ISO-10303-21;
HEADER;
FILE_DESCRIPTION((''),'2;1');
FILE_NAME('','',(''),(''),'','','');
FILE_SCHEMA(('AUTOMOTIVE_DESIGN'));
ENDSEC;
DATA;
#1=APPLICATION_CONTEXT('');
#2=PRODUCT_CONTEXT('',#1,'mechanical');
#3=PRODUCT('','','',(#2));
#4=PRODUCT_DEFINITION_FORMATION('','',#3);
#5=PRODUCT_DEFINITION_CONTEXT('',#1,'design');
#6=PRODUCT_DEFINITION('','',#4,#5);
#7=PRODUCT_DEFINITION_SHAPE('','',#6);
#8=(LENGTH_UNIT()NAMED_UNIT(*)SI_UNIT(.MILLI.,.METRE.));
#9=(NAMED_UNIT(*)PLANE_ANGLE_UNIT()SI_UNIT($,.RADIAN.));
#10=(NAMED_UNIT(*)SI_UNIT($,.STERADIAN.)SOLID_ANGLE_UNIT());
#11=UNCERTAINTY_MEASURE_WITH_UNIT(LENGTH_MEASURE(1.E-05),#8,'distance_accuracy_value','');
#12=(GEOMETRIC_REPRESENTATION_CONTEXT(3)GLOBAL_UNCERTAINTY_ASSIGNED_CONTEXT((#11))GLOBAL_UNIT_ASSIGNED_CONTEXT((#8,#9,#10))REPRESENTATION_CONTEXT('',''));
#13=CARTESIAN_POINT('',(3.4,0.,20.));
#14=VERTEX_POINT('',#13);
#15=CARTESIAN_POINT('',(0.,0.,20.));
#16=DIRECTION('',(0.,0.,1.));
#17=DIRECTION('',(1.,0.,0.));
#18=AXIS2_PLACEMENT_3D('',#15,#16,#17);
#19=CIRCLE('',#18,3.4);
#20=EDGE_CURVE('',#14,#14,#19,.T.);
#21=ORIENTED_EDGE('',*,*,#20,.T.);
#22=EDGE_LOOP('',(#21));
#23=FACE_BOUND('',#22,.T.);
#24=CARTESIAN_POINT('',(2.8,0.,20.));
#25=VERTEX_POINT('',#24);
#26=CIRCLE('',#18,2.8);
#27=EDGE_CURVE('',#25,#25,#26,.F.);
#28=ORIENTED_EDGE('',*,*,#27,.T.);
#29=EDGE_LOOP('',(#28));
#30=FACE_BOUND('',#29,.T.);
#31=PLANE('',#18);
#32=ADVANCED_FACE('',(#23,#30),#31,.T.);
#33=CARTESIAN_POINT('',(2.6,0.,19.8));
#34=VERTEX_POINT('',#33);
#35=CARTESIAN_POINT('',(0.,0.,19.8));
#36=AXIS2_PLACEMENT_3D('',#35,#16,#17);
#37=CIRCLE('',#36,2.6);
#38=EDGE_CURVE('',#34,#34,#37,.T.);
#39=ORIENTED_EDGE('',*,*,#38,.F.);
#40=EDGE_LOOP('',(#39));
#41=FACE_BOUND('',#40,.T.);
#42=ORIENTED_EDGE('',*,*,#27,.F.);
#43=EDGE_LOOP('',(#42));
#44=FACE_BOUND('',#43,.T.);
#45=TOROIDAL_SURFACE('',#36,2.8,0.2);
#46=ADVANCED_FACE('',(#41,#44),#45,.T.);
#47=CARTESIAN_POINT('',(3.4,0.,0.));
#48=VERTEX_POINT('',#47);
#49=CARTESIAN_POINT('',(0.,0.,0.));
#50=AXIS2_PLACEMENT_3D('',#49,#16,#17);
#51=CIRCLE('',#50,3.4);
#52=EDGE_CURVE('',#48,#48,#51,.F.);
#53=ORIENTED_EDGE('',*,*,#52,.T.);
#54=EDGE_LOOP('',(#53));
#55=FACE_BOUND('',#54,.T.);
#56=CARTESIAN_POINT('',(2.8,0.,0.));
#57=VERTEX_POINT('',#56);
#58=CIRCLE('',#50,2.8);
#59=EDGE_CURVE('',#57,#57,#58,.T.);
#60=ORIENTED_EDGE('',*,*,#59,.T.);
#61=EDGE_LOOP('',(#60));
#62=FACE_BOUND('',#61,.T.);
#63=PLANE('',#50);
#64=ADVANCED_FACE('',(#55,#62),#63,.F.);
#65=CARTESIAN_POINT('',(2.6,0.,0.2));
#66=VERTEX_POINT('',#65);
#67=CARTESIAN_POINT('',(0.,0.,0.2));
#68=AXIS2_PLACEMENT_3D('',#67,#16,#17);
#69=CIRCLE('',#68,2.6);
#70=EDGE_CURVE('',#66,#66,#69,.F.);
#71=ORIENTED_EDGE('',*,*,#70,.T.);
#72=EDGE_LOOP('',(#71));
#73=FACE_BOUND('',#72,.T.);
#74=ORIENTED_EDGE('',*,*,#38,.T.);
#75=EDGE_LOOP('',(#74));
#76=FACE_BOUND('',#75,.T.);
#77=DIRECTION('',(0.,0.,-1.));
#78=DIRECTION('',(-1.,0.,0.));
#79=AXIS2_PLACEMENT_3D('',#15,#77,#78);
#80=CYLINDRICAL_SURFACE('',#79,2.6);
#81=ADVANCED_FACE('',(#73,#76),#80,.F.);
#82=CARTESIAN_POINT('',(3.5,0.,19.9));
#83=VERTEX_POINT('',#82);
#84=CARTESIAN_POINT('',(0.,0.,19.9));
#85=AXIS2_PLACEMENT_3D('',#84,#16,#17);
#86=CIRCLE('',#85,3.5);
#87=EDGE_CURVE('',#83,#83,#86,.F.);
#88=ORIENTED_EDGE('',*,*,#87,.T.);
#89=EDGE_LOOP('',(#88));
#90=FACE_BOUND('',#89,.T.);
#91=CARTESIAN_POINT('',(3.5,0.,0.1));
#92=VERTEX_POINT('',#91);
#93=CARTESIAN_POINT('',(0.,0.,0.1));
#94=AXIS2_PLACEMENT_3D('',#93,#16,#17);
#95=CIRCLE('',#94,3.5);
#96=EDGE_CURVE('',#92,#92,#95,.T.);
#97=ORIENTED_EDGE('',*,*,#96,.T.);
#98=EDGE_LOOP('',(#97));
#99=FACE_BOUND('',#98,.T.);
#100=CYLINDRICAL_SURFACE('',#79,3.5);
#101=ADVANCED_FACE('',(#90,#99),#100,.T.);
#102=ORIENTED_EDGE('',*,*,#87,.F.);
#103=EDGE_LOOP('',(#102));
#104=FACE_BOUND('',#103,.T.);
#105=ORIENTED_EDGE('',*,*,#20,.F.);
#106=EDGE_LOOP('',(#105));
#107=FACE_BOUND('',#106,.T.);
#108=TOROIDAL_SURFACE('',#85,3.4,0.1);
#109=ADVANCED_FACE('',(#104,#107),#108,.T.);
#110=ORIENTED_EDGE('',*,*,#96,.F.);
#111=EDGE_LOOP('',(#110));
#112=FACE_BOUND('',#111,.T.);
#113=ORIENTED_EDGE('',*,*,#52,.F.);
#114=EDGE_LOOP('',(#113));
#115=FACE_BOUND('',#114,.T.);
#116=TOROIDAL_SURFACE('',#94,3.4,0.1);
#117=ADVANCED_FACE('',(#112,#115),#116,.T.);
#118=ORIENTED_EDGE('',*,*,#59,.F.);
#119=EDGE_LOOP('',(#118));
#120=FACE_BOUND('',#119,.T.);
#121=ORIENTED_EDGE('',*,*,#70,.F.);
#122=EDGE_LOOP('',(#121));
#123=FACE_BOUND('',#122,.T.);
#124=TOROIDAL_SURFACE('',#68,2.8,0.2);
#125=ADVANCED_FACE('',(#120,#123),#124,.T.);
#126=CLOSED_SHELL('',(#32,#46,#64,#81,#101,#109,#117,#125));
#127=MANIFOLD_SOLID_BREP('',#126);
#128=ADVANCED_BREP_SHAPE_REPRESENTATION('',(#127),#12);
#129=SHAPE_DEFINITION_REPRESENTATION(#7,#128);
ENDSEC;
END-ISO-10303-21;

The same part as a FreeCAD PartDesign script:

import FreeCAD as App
import Part
import Sketcher

V = App.Vector


def edges_at(feature, points):
    """Names of the edges that pass closest to the given points."""
    edges = feature.Shape.Edges
    near = lambda p: min(range(len(edges)), key=lambda i: edges[i].distToShape(Part.Vertex(*p))[0])
    return sorted({f"Edge{near(p) + 1}" for p in points})

doc = App.newDocument("Part")
body = doc.addObject("PartDesign::Body", "Body")

sketch1 = doc.addObject("Sketcher::SketchObject", "Sketch")
body.addObject(sketch1)
sketch1.AttachmentSupport = (doc.XY_Plane, [""])
sketch1.MapMode = "FlatFace"
sketch1.addGeometry([
    Part.Circle(V(0, 0, 0), V(0, 0, 1), 3.5),
    Part.Circle(V(0, 0, 0), V(0, 0, 1), 2.6),
], False)
sketch1.addConstraint([
    Sketcher.Constraint("Coincident", 0, 3, -1, 1),
    Sketcher.Constraint("Coincident", 1, 3, -1, 1),
    Sketcher.Constraint("Diameter", 0, 7.0),
    Sketcher.Constraint("Diameter", 1, 5.2),
])
pad1 = doc.addObject("PartDesign::Pad", "Pad")
body.addObject(pad1)
pad1.Profile = sketch1
pad1.Length = 20
doc.recompute()

fillet = doc.addObject("PartDesign::Fillet", "Fillet")
body.addObject(fillet)
fillet.Base = (pad1, edges_at(pad1, [(-3.5, 0, 0), (-3.5, 0, 20)]))
fillet.Radius = 0.1
doc.recompute()

fillet2 = doc.addObject("PartDesign::Fillet", "Fillet001")
body.addObject(fillet2)
fillet2.Base = (fillet, edges_at(fillet, [(-2.6, 0, 0), (-2.6, 0, 20)]))
fillet2.Radius = 0.2

doc.recompute()
